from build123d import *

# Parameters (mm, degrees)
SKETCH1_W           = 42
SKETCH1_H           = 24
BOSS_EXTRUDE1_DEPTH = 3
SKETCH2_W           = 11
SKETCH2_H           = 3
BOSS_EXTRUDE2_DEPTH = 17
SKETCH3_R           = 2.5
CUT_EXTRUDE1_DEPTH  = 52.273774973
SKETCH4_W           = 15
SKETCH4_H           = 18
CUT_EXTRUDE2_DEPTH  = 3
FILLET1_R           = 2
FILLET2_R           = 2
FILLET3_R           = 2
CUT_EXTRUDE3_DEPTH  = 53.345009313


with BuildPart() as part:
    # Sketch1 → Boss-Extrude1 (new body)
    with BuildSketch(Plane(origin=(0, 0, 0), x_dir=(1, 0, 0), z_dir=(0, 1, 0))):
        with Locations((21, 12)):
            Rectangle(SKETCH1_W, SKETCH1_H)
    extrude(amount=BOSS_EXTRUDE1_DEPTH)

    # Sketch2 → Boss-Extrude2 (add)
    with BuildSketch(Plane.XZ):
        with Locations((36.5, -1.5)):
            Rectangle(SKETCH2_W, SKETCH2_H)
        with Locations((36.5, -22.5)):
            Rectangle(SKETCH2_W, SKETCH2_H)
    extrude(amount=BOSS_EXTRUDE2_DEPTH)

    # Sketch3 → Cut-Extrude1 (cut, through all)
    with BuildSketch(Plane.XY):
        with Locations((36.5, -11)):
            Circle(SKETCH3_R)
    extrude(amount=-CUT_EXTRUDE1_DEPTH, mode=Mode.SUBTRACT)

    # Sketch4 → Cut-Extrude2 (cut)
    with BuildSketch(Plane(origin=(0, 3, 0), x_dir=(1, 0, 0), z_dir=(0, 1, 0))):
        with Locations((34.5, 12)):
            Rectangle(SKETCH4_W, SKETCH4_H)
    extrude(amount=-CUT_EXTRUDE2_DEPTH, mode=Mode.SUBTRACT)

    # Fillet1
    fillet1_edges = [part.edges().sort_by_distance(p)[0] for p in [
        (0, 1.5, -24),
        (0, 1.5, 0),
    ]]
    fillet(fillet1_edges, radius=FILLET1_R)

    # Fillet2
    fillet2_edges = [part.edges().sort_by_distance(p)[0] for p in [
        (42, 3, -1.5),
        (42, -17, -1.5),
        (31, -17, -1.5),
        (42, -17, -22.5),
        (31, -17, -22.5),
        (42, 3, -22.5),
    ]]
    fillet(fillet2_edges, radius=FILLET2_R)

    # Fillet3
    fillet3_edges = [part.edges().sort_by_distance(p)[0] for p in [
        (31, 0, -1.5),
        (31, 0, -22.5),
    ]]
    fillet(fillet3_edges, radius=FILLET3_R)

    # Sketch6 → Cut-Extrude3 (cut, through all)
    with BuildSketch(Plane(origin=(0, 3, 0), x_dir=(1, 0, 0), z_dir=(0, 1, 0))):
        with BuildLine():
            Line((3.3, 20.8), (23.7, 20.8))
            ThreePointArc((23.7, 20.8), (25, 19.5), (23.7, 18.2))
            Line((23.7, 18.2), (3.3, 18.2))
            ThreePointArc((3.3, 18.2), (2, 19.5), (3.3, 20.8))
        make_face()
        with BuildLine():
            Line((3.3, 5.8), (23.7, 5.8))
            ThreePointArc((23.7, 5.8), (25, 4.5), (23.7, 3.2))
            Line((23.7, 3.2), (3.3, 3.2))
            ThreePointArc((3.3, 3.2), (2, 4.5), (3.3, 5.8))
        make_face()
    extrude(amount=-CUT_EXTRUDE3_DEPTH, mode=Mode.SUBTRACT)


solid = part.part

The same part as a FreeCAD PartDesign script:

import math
import FreeCAD as App
import Part
import Sketcher
from FreeCAD import Vector


def edges_at(feature, points):
    """Names of the edges that pass closest to the given points."""
    edges = feature.Shape.Edges
    near = lambda p: min(range(len(edges)), key=lambda i: edges[i].distToShape(Part.Vertex(*p))[0])
    return sorted({f"Edge{near(p) + 1}" for p in points})


def add_polygon(sketch, points):
    """Adds a closed chain of lines whose ends are joined by coincident constraints."""
    first, n = sketch.GeometryCount, len(points)
    for a, b in zip(points, points[1:] + points[:1]):
        sketch.addGeometry(Part.LineSegment(App.Vector(*a, 0), App.Vector(*b, 0)), False)
    for i in range(n):
        sketch.addConstraint(Sketcher.Constraint("Coincident", first + i, 2, first + (i + 1) % n, 1))

doc = App.newDocument("Part")
body = doc.addObject("PartDesign::Body", "Body")

sketch1 = body.newObject("Sketcher::SketchObject", "Sketch")
sketch1.AttachmentSupport = (doc.getObject("XZ_Plane"), [""])
sketch1.MapMode = "FlatFace"
add_polygon(sketch1, [(0, -24), (0, 0), (42, 0), (42, -24)])
sketch1.addConstraint([
    Sketcher.Constraint("Vertical", 0),
    Sketcher.Constraint("Horizontal", 1),
    Sketcher.Constraint("Vertical", 2),
    Sketcher.Constraint("Horizontal", 3),
    Sketcher.Constraint("Coincident", 0, 2, -1, 1),
    Sketcher.Constraint("DistanceX", 1, 1, 1, 2, 42.0),
    Sketcher.Constraint("DistanceY", 0, 1, 0, 2, 24.0),
])
pad1 = body.newObject("PartDesign::Pad", "Pad")
pad1.Profile = sketch1
pad1.Length = 3
pad1.Reversed = True

sketch2 = body.newObject("Sketcher::SketchObject", "Sketch001")
sketch2.AttachmentSupport = (doc.getObject("XZ_Plane"), [""])
sketch2.MapMode = "FlatFace"
add_polygon(sketch2, [(31, 0), (31, -3), (42, -3), (42, 0)])
add_polygon(sketch2, [(31, -21), (31, -24), (42, -24), (42, -21)])
sketch2.addConstraint([
    Sketcher.Constraint("Vertical", 0),
    Sketcher.Constraint("Horizontal", 1),
    Sketcher.Constraint("Vertical", 2),
    Sketcher.Constraint("Horizontal", 3),
    Sketcher.Constraint("Vertical", 4),
    Sketcher.Constraint("Horizontal", 5),
    Sketcher.Constraint("Vertical", 6),
    Sketcher.Constraint("Horizontal", 7),
    Sketcher.Constraint("PointOnObject", 2, 2, -1),
    Sketcher.Constraint("Vertical", 3, 2, 4, 2),
    Sketcher.Constraint("Vertical", 2, 2, 5, 2),
    Sketcher.Constraint("Equal", 2, 4),
    Sketcher.Constraint("DistanceX", 1, 1, 1, 2, 11.0),
    Sketcher.Constraint("DistanceY", 0, 2, 0, 1, 3.0),
    Sketcher.Constraint("DistanceX", -1, 1, 0, 2, 31.0),
    Sketcher.Constraint("DistanceY", 4, 2, -1, 1, 24.0),
])
pad2 = body.newObject("PartDesign::Pad", "Pad001")
pad2.Profile = sketch2
pad2.Length = 17

sketch3 = body.newObject("Sketcher::SketchObject", "Sketch002")
sketch3.AttachmentSupport = (doc.getObject("XY_Plane"), [""])
sketch3.MapMode = "FlatFace"
sketch3.addGeometry(Part.Circle(Vector(36.5, -11, 0), Vector(0, 0, 1), 2.5), False)
sketch3.addConstraint([
    Sketcher.Constraint("Diameter", 0, 5.0),
    Sketcher.Constraint("DistanceY", 0, 3, -1, 1, 11.0),
    Sketcher.Constraint("DistanceX", -1, 1, 0, 3, 36.5),
])
pocket1 = body.newObject("PartDesign::Pocket", "Pocket")
pocket1.Profile = sketch3
pocket1.Type = "ThroughAll"

sketch4 = body.newObject("Sketcher::SketchObject", "Sketch003")
sketch4.AttachmentSupport = (doc.getObject("XZ_Plane"), [""])
sketch4.MapMode = "FlatFace"
sketch4.AttachmentOffset = App.Placement(Vector(0, 0, -3), App.Rotation())
add_polygon(sketch4, [(27, -21), (27, -3), (42, -3), (42, -21)])
sketch4.addConstraint([
    Sketcher.Constraint("Vertical", 0),
    Sketcher.Constraint("Horizontal", 1),
    Sketcher.Constraint("Vertical", 2),
    Sketcher.Constraint("Horizontal", 3),
    Sketcher.Constraint("DistanceX", 1, 1, 1, 2, 15.0),
    Sketcher.Constraint("DistanceY", 0, 1, 0, 2, 18.0),
    Sketcher.Constraint("DistanceX", -1, 1, 0, 2, 27.0),
    Sketcher.Constraint("DistanceY", 0, 2, -1, 1, 3.0),
])
pocket2 = body.newObject("PartDesign::Pocket", "Pocket001")
pocket2.Profile = sketch4
pocket2.Length = 3
pocket2.Reversed = True
doc.recompute()

fillet = body.newObject("PartDesign::Fillet", "Fillet")
fillet.Base = (pocket2, edges_at(pocket2, [(0, 1.5, -24), (0, 1.5, 0)]))
fillet.Radius = 2
doc.recompute()

fillet2 = body.newObject("PartDesign::Fillet", "Fillet001")
fillet2.Base = (fillet, edges_at(fillet, [
    (42, 3, -1.5),
    (42, -17, -1.5),
    (31, -17, -1.5),
    (42, -17, -22.5),
    (31, -17, -22.5),
    (42, 3, -22.5),
]))
fillet2.Radius = 2
doc.recompute()

fillet3 = body.newObject("PartDesign::Fillet", "Fillet002")
fillet3.Base = (fillet2, edges_at(fillet2, [(31, 0, -1.5), (31, 0, -22.5)]))
fillet3.Radius = 2

sketch5 = body.newObject("Sketcher::SketchObject", "Sketch004")
sketch5.AttachmentSupport = (doc.getObject("XZ_Plane"), [""])
sketch5.MapMode = "FlatFace"
sketch5.AttachmentOffset = App.Placement(Vector(0, 0, -3), App.Rotation())
sketch5.addGeometry([
    Part.LineSegment(Vector(23.7, -20.8, 0), Vector(3.3, -20.8, 0)),
    Part.ArcOfCircle(Part.Circle(Vector(3.3, -19.5, 0), Vector(0, 0, 1), 1.3), math.radians(90), math.radians(270)),
    Part.LineSegment(Vector(3.3, -18.2, 0), Vector(23.7, -18.2, 0)),
    Part.ArcOfCircle(Part.Circle(Vector(23.7, -19.5, 0), Vector(0, 0, 1), 1.3), math.radians(-90), math.radians(90)),
    Part.LineSegment(Vector(23.7, -5.8, 0), Vector(3.3, -5.8, 0)),
    Part.ArcOfCircle(Part.Circle(Vector(3.3, -4.5, 0), Vector(0, 0, 1), 1.3), math.radians(90), math.radians(270)),
    Part.LineSegment(Vector(3.3, -3.2, 0), Vector(23.7, -3.2, 0)),
    Part.ArcOfCircle(Part.Circle(Vector(23.7, -4.5, 0), Vector(0, 0, 1), 1.3), math.radians(-90), math.radians(90)),
], False)
sketch5.addConstraint([
    Sketcher.Constraint("Tangent", 0, 2, 1, 2),
    Sketcher.Constraint("Tangent", 1, 1, 2, 1),
    Sketcher.Constraint("Tangent", 2, 2, 3, 2),
    Sketcher.Constraint("Tangent", 3, 1, 0, 1),
    Sketcher.Constraint("Tangent", 4, 2, 5, 2),
    Sketcher.Constraint("Tangent", 5, 1, 6, 1),
    Sketcher.Constraint("Tangent", 6, 2, 7, 2),
    Sketcher.Constraint("Tangent", 7, 1, 4, 1),
    Sketcher.Constraint("Horizontal", 0),
    Sketcher.Constraint("Horizontal", 2),
    Sketcher.Constraint("Horizontal", 4),
    Sketcher.Constraint("Horizontal", 6),
    Sketcher.Constraint("Equal", 3, 5),
    Sketcher.Constraint("Vertical", 1, 3, 5, 3),
    Sketcher.Constraint("Vertical", 3, 3, 7, 3),
    Sketcher.Constraint("Radius", 1, 1.3),
    Sketcher.Constraint("DistanceX", 0, 2, 0, 1, 20.4),
    Sketcher.Constraint("DistanceY", 1, 3, 5, 3, 15.0),
    Sketcher.Constraint("DistanceX", -1, 1, 1, 3, 3.3),
    Sketcher.Constraint("DistanceY", 1, 3, -1, 1, 19.5),
])
pocket3 = body.newObject("PartDesign::Pocket", "Pocket002")
pocket3.Profile = sketch5
pocket3.Type = "ThroughAll"
pocket3.Reversed = True

doc.recompute()
